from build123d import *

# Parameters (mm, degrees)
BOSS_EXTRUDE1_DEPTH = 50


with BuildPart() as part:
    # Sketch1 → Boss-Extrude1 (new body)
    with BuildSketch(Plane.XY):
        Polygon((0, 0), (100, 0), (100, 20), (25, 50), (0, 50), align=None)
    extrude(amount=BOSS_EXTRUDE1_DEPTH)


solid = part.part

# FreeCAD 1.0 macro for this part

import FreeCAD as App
import Part
import Sketcher

V = App.Vector
Q = App.Units.Quantity


def add_polygon(sketch, points):
    """Adds a closed chain of lines whose ends are joined by coincident constraints."""
    first, n = sketch.GeometryCount, len(points)
    for a, b in zip(points, points[1:] + points[:1]):
        sketch.addGeometry(Part.LineSegment(App.Vector(*a, 0), App.Vector(*b, 0)), False)
    for i in range(n):
        sketch.addConstraint(Sketcher.Constraint("Coincident", first + i, 2, first + (i + 1) % n, 1))

doc = App.newDocument("Part")
params = doc.addObject("Spreadsheet::Sheet", "Params")
for row, (alias, value) in enumerate([
    ("sketch1_width", "100 mm"),
    ("sketch1_width2", "25 mm"),
    ("sketch1_height", "20 mm"),
    ("sketch1_height2", "50 mm"),
    ("pad1_length", "50 mm"),
], start=1):
    params.set(f"A{row}", alias)
    params.set(f"B{row}", "=" + value)
    params.setAlias(f"B{row}", alias)

body = doc.addObject("PartDesign::Body", "Body")

sketch1 = doc.addObject("Sketcher::SketchObject", "Sketch")
body.addObject(sketch1)
sketch1.AttachmentSupport = (doc.XY_Plane, [""])
sketch1.MapMode = "FlatFace"
add_polygon(sketch1, [(0, 0), (100, 0), (100, 20), (25, 50), (0, 50)])
sketch1.addConstraint([
    Sketcher.Constraint("Horizontal", 0),
    Sketcher.Constraint("Vertical", 1),
    Sketcher.Constraint("Horizontal", 3),
    Sketcher.Constraint("Vertical", 4),
    Sketcher.Constraint("Coincident", 4, 2, -1, 1),
    Sketcher.Constraint("DistanceX", 0, 1, 0, 2, Q("100 mm")),
    Sketcher.Constraint("DistanceX", 3, 2, 3, 1, Q("25 mm")),
    Sketcher.Constraint("DistanceY", 1, 1, 1, 2, Q("20 mm")),
    Sketcher.Constraint("DistanceY", 4, 2, 4, 1, Q("50 mm")),
])
sketch1.setExpression("Constraints[10]", "Params.sketch1_width")
sketch1.setExpression("Constraints[11]", "Params.sketch1_width2")
sketch1.setExpression("Constraints[12]", "Params.sketch1_height")
sketch1.setExpression("Constraints[13]", "Params.sketch1_height2")
pad1 = doc.addObject("PartDesign::Pad", "Pad")
body.addObject(pad1)
pad1.Profile = sketch1
pad1.setExpression("Length", "Params.pad1_length")

doc.recompute()
